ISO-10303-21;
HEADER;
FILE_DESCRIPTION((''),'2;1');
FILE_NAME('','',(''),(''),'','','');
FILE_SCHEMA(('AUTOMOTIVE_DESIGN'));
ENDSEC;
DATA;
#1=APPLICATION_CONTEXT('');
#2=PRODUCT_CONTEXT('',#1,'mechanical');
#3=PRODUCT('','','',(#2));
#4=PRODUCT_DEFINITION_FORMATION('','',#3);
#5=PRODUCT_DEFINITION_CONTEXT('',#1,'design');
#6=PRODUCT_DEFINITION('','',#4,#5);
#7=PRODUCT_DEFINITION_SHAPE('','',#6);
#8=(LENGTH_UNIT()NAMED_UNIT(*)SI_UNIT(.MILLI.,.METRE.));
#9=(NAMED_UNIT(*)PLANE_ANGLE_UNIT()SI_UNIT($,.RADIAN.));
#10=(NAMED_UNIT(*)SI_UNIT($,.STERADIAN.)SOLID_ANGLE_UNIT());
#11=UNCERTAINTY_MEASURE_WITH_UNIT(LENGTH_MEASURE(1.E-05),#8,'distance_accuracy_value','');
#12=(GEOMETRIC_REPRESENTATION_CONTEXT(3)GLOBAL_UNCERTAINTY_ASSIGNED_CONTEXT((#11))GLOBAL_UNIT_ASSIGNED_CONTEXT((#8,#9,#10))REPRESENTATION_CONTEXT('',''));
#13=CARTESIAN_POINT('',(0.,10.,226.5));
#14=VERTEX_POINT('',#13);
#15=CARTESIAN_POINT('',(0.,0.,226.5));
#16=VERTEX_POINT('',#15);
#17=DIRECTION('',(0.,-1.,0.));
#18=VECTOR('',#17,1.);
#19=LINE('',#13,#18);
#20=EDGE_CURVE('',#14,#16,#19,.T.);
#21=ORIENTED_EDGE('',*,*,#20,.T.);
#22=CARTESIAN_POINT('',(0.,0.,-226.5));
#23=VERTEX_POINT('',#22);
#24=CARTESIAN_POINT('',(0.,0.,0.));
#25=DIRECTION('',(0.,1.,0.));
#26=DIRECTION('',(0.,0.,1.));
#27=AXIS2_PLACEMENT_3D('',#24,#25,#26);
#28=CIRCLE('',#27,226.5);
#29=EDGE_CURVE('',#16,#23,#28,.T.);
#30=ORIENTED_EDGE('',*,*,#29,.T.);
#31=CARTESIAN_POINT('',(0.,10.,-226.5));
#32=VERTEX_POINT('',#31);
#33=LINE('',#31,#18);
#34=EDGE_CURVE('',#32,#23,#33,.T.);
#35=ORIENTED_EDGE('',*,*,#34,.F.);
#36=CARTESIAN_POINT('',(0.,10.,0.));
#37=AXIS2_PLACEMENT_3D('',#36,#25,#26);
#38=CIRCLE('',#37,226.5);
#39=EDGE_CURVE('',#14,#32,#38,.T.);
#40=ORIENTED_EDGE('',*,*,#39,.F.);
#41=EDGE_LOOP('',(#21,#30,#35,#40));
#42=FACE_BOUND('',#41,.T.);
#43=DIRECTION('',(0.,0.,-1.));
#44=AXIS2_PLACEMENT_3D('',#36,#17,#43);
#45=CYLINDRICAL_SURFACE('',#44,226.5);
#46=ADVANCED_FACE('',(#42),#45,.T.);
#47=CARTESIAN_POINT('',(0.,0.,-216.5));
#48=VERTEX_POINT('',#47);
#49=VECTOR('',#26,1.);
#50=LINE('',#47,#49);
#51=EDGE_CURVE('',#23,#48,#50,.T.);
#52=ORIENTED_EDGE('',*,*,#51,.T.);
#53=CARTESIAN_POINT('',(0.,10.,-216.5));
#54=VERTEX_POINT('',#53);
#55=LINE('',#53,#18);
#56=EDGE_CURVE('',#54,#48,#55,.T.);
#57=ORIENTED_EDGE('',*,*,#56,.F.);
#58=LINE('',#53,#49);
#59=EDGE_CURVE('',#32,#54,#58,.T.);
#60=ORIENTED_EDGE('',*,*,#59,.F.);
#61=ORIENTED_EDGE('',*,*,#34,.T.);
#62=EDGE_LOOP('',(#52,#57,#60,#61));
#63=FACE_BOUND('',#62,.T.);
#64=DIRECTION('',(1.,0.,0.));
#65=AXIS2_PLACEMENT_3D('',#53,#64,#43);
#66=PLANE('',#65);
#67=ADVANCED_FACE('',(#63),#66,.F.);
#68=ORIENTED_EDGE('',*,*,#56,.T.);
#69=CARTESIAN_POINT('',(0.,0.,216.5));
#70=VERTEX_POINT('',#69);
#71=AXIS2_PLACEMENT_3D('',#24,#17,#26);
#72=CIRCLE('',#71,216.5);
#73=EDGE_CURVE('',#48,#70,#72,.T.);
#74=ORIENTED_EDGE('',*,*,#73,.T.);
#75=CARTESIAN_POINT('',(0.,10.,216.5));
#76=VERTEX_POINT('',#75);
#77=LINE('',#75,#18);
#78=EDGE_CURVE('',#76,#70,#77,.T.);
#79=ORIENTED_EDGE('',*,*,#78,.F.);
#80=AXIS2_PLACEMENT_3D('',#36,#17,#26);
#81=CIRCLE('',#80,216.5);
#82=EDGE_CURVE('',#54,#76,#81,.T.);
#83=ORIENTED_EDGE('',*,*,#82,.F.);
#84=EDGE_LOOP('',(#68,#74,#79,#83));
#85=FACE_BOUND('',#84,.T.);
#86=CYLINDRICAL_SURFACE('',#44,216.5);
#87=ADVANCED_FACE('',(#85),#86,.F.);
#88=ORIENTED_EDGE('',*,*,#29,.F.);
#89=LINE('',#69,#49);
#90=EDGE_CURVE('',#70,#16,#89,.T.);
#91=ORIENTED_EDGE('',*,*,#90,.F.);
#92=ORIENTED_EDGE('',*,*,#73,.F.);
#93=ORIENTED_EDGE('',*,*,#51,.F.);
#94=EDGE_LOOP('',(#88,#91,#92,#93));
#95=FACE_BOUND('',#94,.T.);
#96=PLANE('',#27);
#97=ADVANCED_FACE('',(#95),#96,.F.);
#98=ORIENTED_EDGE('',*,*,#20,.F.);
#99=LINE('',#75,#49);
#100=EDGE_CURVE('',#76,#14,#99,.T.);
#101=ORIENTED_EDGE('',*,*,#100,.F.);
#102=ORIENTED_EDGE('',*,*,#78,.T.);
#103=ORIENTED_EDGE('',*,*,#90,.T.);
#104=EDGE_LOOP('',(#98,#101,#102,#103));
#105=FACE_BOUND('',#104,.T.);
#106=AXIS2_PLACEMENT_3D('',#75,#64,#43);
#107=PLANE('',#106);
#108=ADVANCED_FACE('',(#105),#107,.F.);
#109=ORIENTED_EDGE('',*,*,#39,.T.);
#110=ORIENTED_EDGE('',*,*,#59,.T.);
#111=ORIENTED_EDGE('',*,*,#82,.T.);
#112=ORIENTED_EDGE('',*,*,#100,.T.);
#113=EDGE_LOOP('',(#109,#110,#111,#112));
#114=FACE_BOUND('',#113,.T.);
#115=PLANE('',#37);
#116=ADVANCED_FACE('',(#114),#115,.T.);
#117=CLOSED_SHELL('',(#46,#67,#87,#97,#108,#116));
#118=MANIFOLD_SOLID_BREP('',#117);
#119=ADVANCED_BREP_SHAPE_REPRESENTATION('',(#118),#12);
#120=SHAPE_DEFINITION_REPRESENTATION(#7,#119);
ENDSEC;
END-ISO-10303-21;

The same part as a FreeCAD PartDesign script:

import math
import FreeCAD as App
import Part
import Sketcher

V = App.Vector
Q = App.Units.Quantity

doc = App.newDocument("Part")
body = doc.addObject("PartDesign::Body", "Body")

sketch1 = body.newObject("Sketcher::SketchObject", "Sketch")
sketch1.AttachmentSupport = (doc.getObject("XZ_Plane"), [""])
sketch1.MapMode = "FlatFace"
sketch1.addGeometry(Part.LineSegment(V(0, -226.5, 0), V(0, -216.5, 0)), False)
sketch1.addGeometry(Part.ArcOfCircle(Part.Circle(V(0, 0, 0), V(0, 0, 1), 216.5), math.radians(-90), math.radians(90)), False)
sketch1.addGeometry(Part.LineSegment(V(0, 216.5, 0), V(0, 226.5, 0)), False)
sketch1.addGeometry(Part.ArcOfCircle(Part.Circle(V(0, 0, 0), V(0, 0, 1), 226.5), math.radians(-90), math.radians(90)), False)
sketch1.addConstraint(Sketcher.Constraint("Coincident", 0, 2, 1, 1))
sketch1.addConstraint(Sketcher.Constraint("Coincident", 1, 2, 2, 1))
sketch1.addConstraint(Sketcher.Constraint("Coincident", 2, 2, 3, 2))
sketch1.addConstraint(Sketcher.Constraint("Coincident", 3, 1, 0, 1))
sketch1.addConstraint(Sketcher.Constraint("Vertical", 0))
sketch1.addConstraint(Sketcher.Constraint("Vertical", 2))
sketch1.addConstraint(Sketcher.Constraint("Coincident", 1, 3, -1, 1))
sketch1.addConstraint(Sketcher.Constraint("Coincident", 3, 3, -1, 1))
sketch1.addConstraint(Sketcher.Constraint("PointOnObject", 0, 2, -2))
sketch1.addConstraint(Sketcher.Constraint("PointOnObject", 1, 2, -2))
sketch1.addConstraint(Sketcher.Constraint("Radius", 1, Q("216.5 mm")))
sketch1.addConstraint(Sketcher.Constraint("Radius", 3, Q("226.5 mm")))
pad1 = body.newObject("PartDesign::Pad", "Pad")
pad1.Profile = sketch1
pad1.Length = 10
pad1.Reversed = True

doc.recompute()
